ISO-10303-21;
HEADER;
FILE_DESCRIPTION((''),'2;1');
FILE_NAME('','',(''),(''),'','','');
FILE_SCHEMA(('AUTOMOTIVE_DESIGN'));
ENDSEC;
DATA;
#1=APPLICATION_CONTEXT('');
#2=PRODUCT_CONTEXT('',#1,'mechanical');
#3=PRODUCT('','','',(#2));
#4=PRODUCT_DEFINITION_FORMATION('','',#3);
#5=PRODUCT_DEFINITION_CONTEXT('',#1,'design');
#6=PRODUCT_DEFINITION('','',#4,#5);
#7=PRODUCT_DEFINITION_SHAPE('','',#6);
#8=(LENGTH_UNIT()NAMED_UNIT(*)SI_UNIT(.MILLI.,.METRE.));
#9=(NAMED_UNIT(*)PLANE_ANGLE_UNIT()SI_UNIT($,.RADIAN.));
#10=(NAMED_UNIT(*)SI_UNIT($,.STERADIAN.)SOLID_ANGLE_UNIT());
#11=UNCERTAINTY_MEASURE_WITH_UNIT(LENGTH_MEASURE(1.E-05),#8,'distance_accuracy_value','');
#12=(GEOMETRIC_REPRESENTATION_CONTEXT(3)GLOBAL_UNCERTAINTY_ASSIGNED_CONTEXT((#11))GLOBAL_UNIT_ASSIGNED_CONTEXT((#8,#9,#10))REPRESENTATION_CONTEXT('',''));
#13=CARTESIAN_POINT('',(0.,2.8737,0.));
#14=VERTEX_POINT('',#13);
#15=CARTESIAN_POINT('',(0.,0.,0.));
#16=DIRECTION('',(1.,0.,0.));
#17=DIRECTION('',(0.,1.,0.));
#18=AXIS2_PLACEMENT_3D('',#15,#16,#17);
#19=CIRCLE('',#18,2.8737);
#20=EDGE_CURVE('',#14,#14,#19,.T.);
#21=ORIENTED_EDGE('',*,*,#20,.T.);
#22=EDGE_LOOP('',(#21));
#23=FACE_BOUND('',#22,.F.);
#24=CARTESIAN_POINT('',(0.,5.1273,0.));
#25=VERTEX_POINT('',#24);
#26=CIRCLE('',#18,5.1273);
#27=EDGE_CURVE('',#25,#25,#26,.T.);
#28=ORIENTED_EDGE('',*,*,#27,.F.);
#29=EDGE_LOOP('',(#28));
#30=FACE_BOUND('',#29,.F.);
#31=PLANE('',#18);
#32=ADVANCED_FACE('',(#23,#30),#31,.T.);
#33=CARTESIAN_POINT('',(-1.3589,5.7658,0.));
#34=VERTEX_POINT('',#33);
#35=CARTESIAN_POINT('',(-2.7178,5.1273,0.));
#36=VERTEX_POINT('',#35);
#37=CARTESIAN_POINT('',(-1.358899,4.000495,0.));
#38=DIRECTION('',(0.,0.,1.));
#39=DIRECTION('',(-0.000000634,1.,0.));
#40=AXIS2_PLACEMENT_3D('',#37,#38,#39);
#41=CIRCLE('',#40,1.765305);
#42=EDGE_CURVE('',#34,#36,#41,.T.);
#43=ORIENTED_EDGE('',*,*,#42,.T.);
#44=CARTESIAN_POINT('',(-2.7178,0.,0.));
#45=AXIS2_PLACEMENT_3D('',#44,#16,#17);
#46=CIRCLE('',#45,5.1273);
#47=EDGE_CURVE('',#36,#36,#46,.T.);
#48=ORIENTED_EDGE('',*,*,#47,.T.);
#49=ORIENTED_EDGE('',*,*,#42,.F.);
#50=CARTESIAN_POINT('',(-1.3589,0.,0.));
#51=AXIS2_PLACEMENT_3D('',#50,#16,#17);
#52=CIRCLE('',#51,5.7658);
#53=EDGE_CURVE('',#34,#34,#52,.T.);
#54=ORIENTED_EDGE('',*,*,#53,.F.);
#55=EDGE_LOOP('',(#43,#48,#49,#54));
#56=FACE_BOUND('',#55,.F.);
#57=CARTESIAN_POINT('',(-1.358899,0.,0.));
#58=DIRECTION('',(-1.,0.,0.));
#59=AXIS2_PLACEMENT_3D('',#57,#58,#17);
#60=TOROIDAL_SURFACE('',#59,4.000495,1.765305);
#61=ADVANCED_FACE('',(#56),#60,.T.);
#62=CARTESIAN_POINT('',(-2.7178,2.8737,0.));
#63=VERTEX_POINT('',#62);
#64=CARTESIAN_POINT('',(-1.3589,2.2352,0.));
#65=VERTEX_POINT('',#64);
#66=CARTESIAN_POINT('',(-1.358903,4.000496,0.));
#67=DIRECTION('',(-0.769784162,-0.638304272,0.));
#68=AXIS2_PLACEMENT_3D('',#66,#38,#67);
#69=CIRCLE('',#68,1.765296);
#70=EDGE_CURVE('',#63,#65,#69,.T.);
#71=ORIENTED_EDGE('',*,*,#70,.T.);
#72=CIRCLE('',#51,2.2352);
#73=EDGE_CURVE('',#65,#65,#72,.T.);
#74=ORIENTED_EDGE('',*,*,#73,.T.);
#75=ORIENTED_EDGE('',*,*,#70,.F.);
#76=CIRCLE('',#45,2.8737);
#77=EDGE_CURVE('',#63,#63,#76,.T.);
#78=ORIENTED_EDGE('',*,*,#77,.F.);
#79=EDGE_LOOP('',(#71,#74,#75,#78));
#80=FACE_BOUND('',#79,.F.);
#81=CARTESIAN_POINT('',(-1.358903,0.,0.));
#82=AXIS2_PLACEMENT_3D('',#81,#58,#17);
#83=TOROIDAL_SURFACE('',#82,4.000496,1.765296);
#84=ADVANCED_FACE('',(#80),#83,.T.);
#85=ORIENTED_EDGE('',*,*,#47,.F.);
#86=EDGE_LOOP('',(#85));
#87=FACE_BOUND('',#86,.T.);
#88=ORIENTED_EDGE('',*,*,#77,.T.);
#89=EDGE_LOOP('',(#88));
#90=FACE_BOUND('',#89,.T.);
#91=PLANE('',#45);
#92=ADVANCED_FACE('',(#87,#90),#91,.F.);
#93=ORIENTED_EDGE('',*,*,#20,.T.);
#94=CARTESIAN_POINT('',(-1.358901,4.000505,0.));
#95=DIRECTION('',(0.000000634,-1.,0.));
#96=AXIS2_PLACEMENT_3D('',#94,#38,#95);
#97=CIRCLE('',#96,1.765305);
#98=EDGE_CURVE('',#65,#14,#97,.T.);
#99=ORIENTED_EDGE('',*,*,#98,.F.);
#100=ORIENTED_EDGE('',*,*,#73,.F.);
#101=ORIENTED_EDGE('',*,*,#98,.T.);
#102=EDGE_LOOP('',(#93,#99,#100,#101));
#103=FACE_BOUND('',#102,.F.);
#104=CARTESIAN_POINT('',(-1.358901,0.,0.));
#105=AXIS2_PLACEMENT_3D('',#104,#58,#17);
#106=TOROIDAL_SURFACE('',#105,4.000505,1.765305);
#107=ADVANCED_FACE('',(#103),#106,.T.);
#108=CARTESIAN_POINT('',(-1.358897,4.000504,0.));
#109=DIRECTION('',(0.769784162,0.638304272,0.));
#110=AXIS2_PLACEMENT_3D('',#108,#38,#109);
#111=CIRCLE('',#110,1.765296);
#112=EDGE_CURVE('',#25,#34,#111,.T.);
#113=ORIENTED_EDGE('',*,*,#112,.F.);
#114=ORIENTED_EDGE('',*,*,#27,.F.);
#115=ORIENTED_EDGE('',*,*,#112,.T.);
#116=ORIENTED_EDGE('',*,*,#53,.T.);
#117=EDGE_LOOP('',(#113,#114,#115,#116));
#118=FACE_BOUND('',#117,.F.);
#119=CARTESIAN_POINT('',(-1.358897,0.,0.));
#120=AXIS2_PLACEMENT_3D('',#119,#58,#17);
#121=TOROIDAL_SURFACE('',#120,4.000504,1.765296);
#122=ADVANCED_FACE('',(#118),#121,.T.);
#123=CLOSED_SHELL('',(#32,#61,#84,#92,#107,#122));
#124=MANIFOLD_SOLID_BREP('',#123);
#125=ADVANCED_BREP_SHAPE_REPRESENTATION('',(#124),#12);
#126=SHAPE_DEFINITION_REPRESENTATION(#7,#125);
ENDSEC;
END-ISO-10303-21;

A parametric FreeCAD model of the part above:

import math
import FreeCAD as App
import Part
import Sketcher
Q = App.Units.Quantity

doc = App.newDocument("Part")
params = doc.addObject("Spreadsheet::Sheet", "Params")
for row, (alias, value) in enumerate([
    ("revolution_angle", "360 deg"),
], start=1):
    params.set(f"A{row}", alias)
    params.set(f"B{row}", "=" + value)
    params.setAlias(f"B{row}", alias)

body = doc.addObject("PartDesign::Body", "Body")

sketch1 = body.newObject("Sketcher::SketchObject", "Sketch")
sketch1.AttachmentSupport = (doc.getObject("XY_Plane"), [""])
sketch1.MapMode = "FlatFace"
sketch1.addGeometry([
    Part.LineSegment(App.Vector(0, 2.9, 0), App.Vector(0, 5.1, 0)),
    Part.ArcOfCircle(Part.Circle(App.Vector(-1.4, 4, 0), App.Vector(0, 0, 1), 1.8), math.radians(40), math.radians(90)),
    Part.ArcOfCircle(Part.Circle(App.Vector(-1.4, 4, 0), App.Vector(0, 0, 1), 1.8), math.radians(90), math.radians(140)),
    Part.LineSegment(App.Vector(-2.7, 5.1, 0), App.Vector(-2.7, 2.9, 0)),
    Part.ArcOfCircle(Part.Circle(App.Vector(-1.4, 4, 0), App.Vector(0, 0, 1), 1.8), math.radians(-140), math.radians(-90)),
    Part.ArcOfCircle(Part.Circle(App.Vector(-1.4, 4, 0), App.Vector(0, 0, 1), 1.8), math.radians(-90), math.radians(-40)),
], False)
sketch1.addConstraint([
    Sketcher.Constraint("Coincident", 0, 2, 1, 1),
    Sketcher.Constraint("Tangent", 1, 2, 2, 1),
    Sketcher.Constraint("Coincident", 2, 2, 3, 1),
    Sketcher.Constraint("Coincident", 3, 2, 4, 1),
    Sketcher.Constraint("Tangent", 4, 2, 5, 1),
    Sketcher.Constraint("Coincident", 5, 2, 0, 1),
    Sketcher.Constraint("Vertical", 0),
    Sketcher.Constraint("Vertical", 3),
    Sketcher.Constraint("Coincident", 4, 3, 1, 3),
    Sketcher.Constraint("Equal", 1, 2),
    Sketcher.Constraint("Equal", 2, 4),
    Sketcher.Constraint("Equal", 4, 5),
    Sketcher.Constraint("PointOnObject", 0, 2, -2),
    Sketcher.Constraint("Horizontal", 0, 2, 2, 2),
    Sketcher.Constraint("Vertical", 5, 3, 1, 2),
    Sketcher.Constraint("Vertical", 1, 2, 4, 2),
    Sketcher.Constraint("Radius", 1, Q("0.0695 in")),
    Sketcher.Constraint("DistanceX", 1, 3, -1, 1, Q("0.0535 in")),
    Sketcher.Constraint("DistanceY", -1, 1, 1, 2, Q("0.227 in")),
])
revolution = body.newObject("PartDesign::Revolution", "Revolution")
revolution.Profile = sketch1
revolution.ReferenceAxis = (sketch1, ["H_Axis"])
revolution.setExpression("Angle", "Params.revolution_angle")

doc.recompute()
